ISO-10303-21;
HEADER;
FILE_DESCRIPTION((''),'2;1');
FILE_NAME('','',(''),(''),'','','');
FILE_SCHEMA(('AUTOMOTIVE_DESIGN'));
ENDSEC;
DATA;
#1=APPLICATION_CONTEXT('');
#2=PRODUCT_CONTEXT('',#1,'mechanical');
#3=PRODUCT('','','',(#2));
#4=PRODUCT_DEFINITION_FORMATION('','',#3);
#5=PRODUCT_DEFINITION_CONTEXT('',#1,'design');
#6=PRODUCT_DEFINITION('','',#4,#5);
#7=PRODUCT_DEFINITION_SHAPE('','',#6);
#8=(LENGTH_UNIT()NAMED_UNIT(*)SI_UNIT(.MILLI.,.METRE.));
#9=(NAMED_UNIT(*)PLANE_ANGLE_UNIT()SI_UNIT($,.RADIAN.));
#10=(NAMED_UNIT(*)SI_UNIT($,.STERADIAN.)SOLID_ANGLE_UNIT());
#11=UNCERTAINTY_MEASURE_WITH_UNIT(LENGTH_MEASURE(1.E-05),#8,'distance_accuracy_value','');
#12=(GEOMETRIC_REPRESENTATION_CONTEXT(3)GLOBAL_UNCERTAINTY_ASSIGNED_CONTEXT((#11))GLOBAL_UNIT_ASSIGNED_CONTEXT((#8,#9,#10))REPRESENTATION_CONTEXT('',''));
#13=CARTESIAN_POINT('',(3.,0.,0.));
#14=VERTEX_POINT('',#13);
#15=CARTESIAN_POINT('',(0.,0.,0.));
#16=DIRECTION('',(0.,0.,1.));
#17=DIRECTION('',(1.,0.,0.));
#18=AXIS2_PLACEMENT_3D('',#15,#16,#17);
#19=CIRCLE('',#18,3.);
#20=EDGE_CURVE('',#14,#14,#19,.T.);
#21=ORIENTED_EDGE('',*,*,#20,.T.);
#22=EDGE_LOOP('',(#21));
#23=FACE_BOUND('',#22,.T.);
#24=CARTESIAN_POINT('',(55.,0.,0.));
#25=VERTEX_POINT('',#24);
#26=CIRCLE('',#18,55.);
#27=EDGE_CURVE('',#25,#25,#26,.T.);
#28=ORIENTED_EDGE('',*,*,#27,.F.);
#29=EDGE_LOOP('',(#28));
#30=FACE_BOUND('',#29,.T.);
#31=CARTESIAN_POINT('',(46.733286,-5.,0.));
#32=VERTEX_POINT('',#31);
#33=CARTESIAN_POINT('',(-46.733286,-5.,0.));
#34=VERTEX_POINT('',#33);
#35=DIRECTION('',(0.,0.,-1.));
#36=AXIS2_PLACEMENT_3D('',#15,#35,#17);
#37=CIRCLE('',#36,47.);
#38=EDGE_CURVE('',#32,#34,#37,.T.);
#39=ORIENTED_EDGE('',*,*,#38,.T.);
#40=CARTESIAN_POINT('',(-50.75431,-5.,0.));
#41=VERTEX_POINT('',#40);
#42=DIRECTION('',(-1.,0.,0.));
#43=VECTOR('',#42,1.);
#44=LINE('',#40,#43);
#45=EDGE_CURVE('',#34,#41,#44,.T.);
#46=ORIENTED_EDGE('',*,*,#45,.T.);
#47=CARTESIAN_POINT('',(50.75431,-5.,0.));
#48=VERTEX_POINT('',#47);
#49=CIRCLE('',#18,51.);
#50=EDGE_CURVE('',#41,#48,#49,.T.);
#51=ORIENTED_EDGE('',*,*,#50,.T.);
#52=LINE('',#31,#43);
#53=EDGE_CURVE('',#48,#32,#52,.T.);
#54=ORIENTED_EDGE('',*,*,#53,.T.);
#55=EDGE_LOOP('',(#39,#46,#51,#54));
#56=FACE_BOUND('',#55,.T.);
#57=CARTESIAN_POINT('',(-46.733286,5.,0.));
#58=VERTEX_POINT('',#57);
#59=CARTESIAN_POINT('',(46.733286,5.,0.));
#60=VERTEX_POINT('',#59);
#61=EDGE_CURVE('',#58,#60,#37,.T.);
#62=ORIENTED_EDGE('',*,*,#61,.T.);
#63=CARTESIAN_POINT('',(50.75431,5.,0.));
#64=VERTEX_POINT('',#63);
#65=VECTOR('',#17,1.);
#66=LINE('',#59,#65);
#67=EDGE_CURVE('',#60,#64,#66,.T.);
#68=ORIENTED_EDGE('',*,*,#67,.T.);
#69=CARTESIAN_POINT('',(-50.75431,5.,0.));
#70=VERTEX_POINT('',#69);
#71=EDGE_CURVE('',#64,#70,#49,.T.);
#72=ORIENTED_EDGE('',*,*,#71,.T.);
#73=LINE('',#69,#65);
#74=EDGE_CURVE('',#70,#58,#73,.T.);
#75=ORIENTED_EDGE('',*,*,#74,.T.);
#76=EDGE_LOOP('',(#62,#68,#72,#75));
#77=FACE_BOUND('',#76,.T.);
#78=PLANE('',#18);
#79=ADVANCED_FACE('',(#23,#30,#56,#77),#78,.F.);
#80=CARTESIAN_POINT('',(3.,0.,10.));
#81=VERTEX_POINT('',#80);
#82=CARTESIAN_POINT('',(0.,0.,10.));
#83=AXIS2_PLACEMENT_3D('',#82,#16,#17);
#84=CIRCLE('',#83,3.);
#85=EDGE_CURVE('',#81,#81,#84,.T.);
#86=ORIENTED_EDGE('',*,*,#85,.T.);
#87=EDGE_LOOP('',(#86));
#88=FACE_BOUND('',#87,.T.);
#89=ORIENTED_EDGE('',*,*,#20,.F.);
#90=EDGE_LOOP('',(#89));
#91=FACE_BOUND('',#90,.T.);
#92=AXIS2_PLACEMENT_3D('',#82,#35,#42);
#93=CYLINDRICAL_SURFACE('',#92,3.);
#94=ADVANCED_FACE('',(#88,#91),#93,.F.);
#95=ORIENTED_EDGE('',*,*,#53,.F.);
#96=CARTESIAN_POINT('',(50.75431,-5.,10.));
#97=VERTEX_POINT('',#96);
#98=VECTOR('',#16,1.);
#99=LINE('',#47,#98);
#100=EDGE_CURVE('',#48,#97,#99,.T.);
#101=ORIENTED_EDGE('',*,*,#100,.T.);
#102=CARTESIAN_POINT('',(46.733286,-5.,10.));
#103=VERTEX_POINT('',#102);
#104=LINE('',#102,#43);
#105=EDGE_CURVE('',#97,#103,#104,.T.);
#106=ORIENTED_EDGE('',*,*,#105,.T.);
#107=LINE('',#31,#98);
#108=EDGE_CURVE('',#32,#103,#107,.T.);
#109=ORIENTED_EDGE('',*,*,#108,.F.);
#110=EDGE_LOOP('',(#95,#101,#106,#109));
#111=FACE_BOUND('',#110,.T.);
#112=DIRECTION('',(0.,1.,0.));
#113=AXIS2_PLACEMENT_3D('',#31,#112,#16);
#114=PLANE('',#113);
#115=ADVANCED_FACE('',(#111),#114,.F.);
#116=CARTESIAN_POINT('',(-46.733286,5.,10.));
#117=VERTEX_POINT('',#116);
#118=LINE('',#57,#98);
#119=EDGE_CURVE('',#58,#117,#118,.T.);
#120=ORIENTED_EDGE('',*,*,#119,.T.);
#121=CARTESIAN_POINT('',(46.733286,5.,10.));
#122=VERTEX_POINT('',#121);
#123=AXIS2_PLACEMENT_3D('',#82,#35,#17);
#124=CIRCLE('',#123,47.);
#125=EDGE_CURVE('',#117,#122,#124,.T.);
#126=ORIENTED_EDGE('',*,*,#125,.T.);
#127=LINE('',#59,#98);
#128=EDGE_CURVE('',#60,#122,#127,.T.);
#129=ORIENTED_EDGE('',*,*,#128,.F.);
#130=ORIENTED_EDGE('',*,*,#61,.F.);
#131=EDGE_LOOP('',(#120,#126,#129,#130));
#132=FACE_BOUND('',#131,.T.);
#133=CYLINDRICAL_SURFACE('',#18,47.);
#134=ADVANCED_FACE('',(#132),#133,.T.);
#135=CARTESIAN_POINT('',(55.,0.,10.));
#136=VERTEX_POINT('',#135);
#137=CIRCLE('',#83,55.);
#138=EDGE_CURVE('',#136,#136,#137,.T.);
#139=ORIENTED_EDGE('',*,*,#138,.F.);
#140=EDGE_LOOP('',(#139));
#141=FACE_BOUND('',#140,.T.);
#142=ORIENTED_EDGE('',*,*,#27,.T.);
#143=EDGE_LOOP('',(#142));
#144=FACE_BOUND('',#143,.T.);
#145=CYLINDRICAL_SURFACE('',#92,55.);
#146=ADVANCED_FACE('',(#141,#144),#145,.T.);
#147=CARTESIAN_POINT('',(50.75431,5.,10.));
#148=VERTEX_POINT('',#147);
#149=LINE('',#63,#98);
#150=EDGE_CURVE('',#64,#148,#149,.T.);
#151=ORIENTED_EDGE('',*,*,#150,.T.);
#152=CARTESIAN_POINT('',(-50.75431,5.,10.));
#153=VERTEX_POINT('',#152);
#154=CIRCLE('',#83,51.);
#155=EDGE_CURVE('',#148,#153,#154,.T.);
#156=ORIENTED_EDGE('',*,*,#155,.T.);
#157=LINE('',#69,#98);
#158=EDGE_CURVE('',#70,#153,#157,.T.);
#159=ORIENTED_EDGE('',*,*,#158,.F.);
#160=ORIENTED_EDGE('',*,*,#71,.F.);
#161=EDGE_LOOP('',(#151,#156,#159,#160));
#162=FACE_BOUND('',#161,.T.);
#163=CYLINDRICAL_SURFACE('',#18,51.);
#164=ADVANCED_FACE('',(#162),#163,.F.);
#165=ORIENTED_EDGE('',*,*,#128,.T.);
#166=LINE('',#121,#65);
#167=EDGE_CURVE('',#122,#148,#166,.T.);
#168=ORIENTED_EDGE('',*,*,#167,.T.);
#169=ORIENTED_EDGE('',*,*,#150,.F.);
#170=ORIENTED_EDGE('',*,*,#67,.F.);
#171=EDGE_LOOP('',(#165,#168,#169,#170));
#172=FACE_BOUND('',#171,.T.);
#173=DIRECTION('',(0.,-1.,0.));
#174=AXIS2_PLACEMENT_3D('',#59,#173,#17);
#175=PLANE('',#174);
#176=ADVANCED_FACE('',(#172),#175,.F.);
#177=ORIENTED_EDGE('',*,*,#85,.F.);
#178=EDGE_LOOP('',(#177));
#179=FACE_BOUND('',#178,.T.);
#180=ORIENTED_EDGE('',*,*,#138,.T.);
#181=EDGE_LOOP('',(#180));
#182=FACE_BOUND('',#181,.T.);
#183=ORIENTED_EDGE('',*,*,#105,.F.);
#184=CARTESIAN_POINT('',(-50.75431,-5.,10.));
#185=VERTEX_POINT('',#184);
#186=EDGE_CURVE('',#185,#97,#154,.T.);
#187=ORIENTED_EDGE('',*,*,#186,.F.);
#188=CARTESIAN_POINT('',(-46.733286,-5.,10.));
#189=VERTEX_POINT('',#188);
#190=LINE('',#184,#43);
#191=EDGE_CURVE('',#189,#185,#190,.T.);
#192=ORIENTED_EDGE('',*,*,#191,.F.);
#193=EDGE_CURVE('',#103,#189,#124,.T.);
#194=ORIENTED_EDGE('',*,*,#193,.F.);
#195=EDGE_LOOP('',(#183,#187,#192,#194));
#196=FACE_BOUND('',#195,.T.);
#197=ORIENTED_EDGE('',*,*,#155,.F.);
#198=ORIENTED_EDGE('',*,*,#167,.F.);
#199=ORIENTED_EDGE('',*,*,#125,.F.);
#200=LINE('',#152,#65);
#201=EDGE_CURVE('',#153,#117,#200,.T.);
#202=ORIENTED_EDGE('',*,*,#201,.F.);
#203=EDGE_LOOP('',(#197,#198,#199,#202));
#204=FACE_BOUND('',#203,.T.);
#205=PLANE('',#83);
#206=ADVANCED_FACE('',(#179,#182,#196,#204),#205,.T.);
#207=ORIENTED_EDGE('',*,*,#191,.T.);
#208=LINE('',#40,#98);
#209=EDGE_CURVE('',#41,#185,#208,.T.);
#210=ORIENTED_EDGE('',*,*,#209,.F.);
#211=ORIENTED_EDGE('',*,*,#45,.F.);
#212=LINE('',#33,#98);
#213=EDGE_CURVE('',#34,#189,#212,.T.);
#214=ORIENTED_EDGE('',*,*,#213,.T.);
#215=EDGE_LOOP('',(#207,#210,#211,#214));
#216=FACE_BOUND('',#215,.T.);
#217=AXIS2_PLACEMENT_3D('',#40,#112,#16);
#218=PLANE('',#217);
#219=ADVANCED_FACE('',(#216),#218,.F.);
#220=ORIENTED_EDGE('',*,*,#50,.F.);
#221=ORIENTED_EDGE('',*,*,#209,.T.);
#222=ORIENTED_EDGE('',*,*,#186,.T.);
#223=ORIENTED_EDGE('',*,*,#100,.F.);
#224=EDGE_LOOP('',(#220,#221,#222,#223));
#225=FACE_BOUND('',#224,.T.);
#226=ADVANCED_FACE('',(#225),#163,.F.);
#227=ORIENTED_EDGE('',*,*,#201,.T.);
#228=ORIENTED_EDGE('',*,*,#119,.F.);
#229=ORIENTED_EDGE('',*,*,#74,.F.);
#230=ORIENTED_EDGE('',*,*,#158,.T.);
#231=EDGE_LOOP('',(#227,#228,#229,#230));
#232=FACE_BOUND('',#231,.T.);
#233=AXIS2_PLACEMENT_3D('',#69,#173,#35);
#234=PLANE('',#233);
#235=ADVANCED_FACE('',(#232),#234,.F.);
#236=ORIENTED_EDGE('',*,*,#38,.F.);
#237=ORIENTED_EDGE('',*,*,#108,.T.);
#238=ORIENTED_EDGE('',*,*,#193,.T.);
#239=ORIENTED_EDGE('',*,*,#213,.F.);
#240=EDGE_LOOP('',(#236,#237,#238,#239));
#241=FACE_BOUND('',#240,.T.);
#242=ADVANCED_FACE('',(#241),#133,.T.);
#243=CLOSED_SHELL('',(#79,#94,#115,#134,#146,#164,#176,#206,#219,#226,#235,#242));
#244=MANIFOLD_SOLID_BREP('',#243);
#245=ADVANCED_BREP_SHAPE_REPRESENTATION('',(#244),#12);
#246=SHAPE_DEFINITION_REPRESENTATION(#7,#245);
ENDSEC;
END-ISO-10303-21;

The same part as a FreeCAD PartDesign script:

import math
import FreeCAD as App
import Part
import Sketcher

V = App.Vector
Q = App.Units.Quantity

doc = App.newDocument("Part")
body = doc.addObject("PartDesign::Body", "Body")

# Sketch on XY plane
sketch1 = body.newObject("Sketcher::SketchObject", "Sketch")
sketch1.AttachmentSupport = (doc.getObject("XY_Plane"), [""])
sketch1.MapMode = "FlatFace"
sketch1.addGeometry(Part.Circle(V(0, 0, 0), V(0, 0, 1), 55), False)
sketch1.addGeometry(Part.Circle(V(0, 0, 0), V(0, 0, 1), 3), False)
sketch1.addConstraint(Sketcher.Constraint("Coincident", 0, 3, -1, 1))
sketch1.addConstraint(Sketcher.Constraint("Coincident", 1, 3, -1, 1))
sketch1.addConstraint(Sketcher.Constraint("Diameter", 0, Q("110 mm")))
sketch1.addConstraint(Sketcher.Constraint("Diameter", 1, Q("6 mm")))
pad1 = body.newObject("PartDesign::Pad", "Pad")
pad1.Profile = sketch1
pad1.Length = 10

# Sketch on XY plane
sketch2 = body.newObject("Sketcher::SketchObject", "Sketch001")
sketch2.AttachmentSupport = (doc.getObject("XY_Plane"), [""])
sketch2.MapMode = "FlatFace"
sketch2.AttachmentOffset = App.Placement(V(0, 0, 10), App.Rotation())
sketch2.addGeometry(Part.LineSegment(V(-46.7, -5, 0), V(-50.8, -5, 0)), False)
sketch2.addGeometry(Part.ArcOfCircle(Part.Circle(V(0, 0, 0), V(0, 0, 1), 51), math.radians(-174), math.radians(-6)), False)
sketch2.addGeometry(Part.LineSegment(V(50.8, -5, 0), V(46.7, -5, 0)), False)
sketch2.addGeometry(Part.ArcOfCircle(Part.Circle(V(0, 0, 0), V(0, 0, 1), 47), math.radians(-174), math.radians(-6)), False)
sketch2.addGeometry(Part.LineSegment(V(-50.8, 5, 0), V(-46.7, 5, 0)), False)
sketch2.addGeometry(Part.ArcOfCircle(Part.Circle(V(0, 0, 0), V(0, 0, 1), 47), math.radians(6), math.radians(174)), False)
sketch2.addGeometry(Part.LineSegment(V(46.7, 5, 0), V(50.8, 5, 0)), False)
sketch2.addGeometry(Part.ArcOfCircle(Part.Circle(V(0, 0, 0), V(0, 0, 1), 51), math.radians(6), math.radians(174)), False)
sketch2.addConstraint(Sketcher.Constraint("Coincident", 0, 2, 1, 1))
sketch2.addConstraint(Sketcher.Constraint("Coincident", 1, 2, 2, 1))
sketch2.addConstraint(Sketcher.Constraint("Coincident", 2, 2, 3, 2))
sketch2.addConstraint(Sketcher.Constraint("Coincident", 3, 1, 0, 1))
sketch2.addConstraint(Sketcher.Constraint("Coincident", 4, 2, 5, 2))
sketch2.addConstraint(Sketcher.Constraint("Coincident", 5, 1, 6, 1))
sketch2.addConstraint(Sketcher.Constraint("Coincident", 6, 2, 7, 1))
sketch2.addConstraint(Sketcher.Constraint("Coincident", 7, 2, 4, 1))
sketch2.addConstraint(Sketcher.Constraint("Horizontal", 0))
sketch2.addConstraint(Sketcher.Constraint("Horizontal", 2))
sketch2.addConstraint(Sketcher.Constraint("Horizontal", 4))
sketch2.addConstraint(Sketcher.Constraint("Horizontal", 6))
sketch2.addConstraint(Sketcher.Constraint("Coincident", 1, 3, -1, 1))
sketch2.addConstraint(Sketcher.Constraint("Coincident", 3, 3, -1, 1))
sketch2.addConstraint(Sketcher.Constraint("Coincident", 5, 3, -1, 1))
sketch2.addConstraint(Sketcher.Constraint("Coincident", 7, 3, -1, 1))
sketch2.addConstraint(Sketcher.Constraint("Equal", 3, 5))
sketch2.addConstraint(Sketcher.Constraint("Equal", 1, 7))
sketch2.addConstraint(Sketcher.Constraint("Horizontal", 0, 2, 1, 2))
sketch2.addConstraint(Sketcher.Constraint("Horizontal", 4, 2, 5, 1))
sketch2.addConstraint(Sketcher.Constraint("Vertical", 3, 1, 4, 2))
sketch2.addConstraint(Sketcher.Constraint("Radius", 1, Q("51 mm")))
sketch2.addConstraint(Sketcher.Constraint("Radius", 3, Q("47 mm")))
sketch2.addConstraint(Sketcher.Constraint("DistanceY", 0, 2, -1, 1, Q("5 mm")))
pocket1 = body.newObject("PartDesign::Pocket", "Pocket")
pocket1.Profile = sketch2
pocket1.Length = 10

doc.recompute()
